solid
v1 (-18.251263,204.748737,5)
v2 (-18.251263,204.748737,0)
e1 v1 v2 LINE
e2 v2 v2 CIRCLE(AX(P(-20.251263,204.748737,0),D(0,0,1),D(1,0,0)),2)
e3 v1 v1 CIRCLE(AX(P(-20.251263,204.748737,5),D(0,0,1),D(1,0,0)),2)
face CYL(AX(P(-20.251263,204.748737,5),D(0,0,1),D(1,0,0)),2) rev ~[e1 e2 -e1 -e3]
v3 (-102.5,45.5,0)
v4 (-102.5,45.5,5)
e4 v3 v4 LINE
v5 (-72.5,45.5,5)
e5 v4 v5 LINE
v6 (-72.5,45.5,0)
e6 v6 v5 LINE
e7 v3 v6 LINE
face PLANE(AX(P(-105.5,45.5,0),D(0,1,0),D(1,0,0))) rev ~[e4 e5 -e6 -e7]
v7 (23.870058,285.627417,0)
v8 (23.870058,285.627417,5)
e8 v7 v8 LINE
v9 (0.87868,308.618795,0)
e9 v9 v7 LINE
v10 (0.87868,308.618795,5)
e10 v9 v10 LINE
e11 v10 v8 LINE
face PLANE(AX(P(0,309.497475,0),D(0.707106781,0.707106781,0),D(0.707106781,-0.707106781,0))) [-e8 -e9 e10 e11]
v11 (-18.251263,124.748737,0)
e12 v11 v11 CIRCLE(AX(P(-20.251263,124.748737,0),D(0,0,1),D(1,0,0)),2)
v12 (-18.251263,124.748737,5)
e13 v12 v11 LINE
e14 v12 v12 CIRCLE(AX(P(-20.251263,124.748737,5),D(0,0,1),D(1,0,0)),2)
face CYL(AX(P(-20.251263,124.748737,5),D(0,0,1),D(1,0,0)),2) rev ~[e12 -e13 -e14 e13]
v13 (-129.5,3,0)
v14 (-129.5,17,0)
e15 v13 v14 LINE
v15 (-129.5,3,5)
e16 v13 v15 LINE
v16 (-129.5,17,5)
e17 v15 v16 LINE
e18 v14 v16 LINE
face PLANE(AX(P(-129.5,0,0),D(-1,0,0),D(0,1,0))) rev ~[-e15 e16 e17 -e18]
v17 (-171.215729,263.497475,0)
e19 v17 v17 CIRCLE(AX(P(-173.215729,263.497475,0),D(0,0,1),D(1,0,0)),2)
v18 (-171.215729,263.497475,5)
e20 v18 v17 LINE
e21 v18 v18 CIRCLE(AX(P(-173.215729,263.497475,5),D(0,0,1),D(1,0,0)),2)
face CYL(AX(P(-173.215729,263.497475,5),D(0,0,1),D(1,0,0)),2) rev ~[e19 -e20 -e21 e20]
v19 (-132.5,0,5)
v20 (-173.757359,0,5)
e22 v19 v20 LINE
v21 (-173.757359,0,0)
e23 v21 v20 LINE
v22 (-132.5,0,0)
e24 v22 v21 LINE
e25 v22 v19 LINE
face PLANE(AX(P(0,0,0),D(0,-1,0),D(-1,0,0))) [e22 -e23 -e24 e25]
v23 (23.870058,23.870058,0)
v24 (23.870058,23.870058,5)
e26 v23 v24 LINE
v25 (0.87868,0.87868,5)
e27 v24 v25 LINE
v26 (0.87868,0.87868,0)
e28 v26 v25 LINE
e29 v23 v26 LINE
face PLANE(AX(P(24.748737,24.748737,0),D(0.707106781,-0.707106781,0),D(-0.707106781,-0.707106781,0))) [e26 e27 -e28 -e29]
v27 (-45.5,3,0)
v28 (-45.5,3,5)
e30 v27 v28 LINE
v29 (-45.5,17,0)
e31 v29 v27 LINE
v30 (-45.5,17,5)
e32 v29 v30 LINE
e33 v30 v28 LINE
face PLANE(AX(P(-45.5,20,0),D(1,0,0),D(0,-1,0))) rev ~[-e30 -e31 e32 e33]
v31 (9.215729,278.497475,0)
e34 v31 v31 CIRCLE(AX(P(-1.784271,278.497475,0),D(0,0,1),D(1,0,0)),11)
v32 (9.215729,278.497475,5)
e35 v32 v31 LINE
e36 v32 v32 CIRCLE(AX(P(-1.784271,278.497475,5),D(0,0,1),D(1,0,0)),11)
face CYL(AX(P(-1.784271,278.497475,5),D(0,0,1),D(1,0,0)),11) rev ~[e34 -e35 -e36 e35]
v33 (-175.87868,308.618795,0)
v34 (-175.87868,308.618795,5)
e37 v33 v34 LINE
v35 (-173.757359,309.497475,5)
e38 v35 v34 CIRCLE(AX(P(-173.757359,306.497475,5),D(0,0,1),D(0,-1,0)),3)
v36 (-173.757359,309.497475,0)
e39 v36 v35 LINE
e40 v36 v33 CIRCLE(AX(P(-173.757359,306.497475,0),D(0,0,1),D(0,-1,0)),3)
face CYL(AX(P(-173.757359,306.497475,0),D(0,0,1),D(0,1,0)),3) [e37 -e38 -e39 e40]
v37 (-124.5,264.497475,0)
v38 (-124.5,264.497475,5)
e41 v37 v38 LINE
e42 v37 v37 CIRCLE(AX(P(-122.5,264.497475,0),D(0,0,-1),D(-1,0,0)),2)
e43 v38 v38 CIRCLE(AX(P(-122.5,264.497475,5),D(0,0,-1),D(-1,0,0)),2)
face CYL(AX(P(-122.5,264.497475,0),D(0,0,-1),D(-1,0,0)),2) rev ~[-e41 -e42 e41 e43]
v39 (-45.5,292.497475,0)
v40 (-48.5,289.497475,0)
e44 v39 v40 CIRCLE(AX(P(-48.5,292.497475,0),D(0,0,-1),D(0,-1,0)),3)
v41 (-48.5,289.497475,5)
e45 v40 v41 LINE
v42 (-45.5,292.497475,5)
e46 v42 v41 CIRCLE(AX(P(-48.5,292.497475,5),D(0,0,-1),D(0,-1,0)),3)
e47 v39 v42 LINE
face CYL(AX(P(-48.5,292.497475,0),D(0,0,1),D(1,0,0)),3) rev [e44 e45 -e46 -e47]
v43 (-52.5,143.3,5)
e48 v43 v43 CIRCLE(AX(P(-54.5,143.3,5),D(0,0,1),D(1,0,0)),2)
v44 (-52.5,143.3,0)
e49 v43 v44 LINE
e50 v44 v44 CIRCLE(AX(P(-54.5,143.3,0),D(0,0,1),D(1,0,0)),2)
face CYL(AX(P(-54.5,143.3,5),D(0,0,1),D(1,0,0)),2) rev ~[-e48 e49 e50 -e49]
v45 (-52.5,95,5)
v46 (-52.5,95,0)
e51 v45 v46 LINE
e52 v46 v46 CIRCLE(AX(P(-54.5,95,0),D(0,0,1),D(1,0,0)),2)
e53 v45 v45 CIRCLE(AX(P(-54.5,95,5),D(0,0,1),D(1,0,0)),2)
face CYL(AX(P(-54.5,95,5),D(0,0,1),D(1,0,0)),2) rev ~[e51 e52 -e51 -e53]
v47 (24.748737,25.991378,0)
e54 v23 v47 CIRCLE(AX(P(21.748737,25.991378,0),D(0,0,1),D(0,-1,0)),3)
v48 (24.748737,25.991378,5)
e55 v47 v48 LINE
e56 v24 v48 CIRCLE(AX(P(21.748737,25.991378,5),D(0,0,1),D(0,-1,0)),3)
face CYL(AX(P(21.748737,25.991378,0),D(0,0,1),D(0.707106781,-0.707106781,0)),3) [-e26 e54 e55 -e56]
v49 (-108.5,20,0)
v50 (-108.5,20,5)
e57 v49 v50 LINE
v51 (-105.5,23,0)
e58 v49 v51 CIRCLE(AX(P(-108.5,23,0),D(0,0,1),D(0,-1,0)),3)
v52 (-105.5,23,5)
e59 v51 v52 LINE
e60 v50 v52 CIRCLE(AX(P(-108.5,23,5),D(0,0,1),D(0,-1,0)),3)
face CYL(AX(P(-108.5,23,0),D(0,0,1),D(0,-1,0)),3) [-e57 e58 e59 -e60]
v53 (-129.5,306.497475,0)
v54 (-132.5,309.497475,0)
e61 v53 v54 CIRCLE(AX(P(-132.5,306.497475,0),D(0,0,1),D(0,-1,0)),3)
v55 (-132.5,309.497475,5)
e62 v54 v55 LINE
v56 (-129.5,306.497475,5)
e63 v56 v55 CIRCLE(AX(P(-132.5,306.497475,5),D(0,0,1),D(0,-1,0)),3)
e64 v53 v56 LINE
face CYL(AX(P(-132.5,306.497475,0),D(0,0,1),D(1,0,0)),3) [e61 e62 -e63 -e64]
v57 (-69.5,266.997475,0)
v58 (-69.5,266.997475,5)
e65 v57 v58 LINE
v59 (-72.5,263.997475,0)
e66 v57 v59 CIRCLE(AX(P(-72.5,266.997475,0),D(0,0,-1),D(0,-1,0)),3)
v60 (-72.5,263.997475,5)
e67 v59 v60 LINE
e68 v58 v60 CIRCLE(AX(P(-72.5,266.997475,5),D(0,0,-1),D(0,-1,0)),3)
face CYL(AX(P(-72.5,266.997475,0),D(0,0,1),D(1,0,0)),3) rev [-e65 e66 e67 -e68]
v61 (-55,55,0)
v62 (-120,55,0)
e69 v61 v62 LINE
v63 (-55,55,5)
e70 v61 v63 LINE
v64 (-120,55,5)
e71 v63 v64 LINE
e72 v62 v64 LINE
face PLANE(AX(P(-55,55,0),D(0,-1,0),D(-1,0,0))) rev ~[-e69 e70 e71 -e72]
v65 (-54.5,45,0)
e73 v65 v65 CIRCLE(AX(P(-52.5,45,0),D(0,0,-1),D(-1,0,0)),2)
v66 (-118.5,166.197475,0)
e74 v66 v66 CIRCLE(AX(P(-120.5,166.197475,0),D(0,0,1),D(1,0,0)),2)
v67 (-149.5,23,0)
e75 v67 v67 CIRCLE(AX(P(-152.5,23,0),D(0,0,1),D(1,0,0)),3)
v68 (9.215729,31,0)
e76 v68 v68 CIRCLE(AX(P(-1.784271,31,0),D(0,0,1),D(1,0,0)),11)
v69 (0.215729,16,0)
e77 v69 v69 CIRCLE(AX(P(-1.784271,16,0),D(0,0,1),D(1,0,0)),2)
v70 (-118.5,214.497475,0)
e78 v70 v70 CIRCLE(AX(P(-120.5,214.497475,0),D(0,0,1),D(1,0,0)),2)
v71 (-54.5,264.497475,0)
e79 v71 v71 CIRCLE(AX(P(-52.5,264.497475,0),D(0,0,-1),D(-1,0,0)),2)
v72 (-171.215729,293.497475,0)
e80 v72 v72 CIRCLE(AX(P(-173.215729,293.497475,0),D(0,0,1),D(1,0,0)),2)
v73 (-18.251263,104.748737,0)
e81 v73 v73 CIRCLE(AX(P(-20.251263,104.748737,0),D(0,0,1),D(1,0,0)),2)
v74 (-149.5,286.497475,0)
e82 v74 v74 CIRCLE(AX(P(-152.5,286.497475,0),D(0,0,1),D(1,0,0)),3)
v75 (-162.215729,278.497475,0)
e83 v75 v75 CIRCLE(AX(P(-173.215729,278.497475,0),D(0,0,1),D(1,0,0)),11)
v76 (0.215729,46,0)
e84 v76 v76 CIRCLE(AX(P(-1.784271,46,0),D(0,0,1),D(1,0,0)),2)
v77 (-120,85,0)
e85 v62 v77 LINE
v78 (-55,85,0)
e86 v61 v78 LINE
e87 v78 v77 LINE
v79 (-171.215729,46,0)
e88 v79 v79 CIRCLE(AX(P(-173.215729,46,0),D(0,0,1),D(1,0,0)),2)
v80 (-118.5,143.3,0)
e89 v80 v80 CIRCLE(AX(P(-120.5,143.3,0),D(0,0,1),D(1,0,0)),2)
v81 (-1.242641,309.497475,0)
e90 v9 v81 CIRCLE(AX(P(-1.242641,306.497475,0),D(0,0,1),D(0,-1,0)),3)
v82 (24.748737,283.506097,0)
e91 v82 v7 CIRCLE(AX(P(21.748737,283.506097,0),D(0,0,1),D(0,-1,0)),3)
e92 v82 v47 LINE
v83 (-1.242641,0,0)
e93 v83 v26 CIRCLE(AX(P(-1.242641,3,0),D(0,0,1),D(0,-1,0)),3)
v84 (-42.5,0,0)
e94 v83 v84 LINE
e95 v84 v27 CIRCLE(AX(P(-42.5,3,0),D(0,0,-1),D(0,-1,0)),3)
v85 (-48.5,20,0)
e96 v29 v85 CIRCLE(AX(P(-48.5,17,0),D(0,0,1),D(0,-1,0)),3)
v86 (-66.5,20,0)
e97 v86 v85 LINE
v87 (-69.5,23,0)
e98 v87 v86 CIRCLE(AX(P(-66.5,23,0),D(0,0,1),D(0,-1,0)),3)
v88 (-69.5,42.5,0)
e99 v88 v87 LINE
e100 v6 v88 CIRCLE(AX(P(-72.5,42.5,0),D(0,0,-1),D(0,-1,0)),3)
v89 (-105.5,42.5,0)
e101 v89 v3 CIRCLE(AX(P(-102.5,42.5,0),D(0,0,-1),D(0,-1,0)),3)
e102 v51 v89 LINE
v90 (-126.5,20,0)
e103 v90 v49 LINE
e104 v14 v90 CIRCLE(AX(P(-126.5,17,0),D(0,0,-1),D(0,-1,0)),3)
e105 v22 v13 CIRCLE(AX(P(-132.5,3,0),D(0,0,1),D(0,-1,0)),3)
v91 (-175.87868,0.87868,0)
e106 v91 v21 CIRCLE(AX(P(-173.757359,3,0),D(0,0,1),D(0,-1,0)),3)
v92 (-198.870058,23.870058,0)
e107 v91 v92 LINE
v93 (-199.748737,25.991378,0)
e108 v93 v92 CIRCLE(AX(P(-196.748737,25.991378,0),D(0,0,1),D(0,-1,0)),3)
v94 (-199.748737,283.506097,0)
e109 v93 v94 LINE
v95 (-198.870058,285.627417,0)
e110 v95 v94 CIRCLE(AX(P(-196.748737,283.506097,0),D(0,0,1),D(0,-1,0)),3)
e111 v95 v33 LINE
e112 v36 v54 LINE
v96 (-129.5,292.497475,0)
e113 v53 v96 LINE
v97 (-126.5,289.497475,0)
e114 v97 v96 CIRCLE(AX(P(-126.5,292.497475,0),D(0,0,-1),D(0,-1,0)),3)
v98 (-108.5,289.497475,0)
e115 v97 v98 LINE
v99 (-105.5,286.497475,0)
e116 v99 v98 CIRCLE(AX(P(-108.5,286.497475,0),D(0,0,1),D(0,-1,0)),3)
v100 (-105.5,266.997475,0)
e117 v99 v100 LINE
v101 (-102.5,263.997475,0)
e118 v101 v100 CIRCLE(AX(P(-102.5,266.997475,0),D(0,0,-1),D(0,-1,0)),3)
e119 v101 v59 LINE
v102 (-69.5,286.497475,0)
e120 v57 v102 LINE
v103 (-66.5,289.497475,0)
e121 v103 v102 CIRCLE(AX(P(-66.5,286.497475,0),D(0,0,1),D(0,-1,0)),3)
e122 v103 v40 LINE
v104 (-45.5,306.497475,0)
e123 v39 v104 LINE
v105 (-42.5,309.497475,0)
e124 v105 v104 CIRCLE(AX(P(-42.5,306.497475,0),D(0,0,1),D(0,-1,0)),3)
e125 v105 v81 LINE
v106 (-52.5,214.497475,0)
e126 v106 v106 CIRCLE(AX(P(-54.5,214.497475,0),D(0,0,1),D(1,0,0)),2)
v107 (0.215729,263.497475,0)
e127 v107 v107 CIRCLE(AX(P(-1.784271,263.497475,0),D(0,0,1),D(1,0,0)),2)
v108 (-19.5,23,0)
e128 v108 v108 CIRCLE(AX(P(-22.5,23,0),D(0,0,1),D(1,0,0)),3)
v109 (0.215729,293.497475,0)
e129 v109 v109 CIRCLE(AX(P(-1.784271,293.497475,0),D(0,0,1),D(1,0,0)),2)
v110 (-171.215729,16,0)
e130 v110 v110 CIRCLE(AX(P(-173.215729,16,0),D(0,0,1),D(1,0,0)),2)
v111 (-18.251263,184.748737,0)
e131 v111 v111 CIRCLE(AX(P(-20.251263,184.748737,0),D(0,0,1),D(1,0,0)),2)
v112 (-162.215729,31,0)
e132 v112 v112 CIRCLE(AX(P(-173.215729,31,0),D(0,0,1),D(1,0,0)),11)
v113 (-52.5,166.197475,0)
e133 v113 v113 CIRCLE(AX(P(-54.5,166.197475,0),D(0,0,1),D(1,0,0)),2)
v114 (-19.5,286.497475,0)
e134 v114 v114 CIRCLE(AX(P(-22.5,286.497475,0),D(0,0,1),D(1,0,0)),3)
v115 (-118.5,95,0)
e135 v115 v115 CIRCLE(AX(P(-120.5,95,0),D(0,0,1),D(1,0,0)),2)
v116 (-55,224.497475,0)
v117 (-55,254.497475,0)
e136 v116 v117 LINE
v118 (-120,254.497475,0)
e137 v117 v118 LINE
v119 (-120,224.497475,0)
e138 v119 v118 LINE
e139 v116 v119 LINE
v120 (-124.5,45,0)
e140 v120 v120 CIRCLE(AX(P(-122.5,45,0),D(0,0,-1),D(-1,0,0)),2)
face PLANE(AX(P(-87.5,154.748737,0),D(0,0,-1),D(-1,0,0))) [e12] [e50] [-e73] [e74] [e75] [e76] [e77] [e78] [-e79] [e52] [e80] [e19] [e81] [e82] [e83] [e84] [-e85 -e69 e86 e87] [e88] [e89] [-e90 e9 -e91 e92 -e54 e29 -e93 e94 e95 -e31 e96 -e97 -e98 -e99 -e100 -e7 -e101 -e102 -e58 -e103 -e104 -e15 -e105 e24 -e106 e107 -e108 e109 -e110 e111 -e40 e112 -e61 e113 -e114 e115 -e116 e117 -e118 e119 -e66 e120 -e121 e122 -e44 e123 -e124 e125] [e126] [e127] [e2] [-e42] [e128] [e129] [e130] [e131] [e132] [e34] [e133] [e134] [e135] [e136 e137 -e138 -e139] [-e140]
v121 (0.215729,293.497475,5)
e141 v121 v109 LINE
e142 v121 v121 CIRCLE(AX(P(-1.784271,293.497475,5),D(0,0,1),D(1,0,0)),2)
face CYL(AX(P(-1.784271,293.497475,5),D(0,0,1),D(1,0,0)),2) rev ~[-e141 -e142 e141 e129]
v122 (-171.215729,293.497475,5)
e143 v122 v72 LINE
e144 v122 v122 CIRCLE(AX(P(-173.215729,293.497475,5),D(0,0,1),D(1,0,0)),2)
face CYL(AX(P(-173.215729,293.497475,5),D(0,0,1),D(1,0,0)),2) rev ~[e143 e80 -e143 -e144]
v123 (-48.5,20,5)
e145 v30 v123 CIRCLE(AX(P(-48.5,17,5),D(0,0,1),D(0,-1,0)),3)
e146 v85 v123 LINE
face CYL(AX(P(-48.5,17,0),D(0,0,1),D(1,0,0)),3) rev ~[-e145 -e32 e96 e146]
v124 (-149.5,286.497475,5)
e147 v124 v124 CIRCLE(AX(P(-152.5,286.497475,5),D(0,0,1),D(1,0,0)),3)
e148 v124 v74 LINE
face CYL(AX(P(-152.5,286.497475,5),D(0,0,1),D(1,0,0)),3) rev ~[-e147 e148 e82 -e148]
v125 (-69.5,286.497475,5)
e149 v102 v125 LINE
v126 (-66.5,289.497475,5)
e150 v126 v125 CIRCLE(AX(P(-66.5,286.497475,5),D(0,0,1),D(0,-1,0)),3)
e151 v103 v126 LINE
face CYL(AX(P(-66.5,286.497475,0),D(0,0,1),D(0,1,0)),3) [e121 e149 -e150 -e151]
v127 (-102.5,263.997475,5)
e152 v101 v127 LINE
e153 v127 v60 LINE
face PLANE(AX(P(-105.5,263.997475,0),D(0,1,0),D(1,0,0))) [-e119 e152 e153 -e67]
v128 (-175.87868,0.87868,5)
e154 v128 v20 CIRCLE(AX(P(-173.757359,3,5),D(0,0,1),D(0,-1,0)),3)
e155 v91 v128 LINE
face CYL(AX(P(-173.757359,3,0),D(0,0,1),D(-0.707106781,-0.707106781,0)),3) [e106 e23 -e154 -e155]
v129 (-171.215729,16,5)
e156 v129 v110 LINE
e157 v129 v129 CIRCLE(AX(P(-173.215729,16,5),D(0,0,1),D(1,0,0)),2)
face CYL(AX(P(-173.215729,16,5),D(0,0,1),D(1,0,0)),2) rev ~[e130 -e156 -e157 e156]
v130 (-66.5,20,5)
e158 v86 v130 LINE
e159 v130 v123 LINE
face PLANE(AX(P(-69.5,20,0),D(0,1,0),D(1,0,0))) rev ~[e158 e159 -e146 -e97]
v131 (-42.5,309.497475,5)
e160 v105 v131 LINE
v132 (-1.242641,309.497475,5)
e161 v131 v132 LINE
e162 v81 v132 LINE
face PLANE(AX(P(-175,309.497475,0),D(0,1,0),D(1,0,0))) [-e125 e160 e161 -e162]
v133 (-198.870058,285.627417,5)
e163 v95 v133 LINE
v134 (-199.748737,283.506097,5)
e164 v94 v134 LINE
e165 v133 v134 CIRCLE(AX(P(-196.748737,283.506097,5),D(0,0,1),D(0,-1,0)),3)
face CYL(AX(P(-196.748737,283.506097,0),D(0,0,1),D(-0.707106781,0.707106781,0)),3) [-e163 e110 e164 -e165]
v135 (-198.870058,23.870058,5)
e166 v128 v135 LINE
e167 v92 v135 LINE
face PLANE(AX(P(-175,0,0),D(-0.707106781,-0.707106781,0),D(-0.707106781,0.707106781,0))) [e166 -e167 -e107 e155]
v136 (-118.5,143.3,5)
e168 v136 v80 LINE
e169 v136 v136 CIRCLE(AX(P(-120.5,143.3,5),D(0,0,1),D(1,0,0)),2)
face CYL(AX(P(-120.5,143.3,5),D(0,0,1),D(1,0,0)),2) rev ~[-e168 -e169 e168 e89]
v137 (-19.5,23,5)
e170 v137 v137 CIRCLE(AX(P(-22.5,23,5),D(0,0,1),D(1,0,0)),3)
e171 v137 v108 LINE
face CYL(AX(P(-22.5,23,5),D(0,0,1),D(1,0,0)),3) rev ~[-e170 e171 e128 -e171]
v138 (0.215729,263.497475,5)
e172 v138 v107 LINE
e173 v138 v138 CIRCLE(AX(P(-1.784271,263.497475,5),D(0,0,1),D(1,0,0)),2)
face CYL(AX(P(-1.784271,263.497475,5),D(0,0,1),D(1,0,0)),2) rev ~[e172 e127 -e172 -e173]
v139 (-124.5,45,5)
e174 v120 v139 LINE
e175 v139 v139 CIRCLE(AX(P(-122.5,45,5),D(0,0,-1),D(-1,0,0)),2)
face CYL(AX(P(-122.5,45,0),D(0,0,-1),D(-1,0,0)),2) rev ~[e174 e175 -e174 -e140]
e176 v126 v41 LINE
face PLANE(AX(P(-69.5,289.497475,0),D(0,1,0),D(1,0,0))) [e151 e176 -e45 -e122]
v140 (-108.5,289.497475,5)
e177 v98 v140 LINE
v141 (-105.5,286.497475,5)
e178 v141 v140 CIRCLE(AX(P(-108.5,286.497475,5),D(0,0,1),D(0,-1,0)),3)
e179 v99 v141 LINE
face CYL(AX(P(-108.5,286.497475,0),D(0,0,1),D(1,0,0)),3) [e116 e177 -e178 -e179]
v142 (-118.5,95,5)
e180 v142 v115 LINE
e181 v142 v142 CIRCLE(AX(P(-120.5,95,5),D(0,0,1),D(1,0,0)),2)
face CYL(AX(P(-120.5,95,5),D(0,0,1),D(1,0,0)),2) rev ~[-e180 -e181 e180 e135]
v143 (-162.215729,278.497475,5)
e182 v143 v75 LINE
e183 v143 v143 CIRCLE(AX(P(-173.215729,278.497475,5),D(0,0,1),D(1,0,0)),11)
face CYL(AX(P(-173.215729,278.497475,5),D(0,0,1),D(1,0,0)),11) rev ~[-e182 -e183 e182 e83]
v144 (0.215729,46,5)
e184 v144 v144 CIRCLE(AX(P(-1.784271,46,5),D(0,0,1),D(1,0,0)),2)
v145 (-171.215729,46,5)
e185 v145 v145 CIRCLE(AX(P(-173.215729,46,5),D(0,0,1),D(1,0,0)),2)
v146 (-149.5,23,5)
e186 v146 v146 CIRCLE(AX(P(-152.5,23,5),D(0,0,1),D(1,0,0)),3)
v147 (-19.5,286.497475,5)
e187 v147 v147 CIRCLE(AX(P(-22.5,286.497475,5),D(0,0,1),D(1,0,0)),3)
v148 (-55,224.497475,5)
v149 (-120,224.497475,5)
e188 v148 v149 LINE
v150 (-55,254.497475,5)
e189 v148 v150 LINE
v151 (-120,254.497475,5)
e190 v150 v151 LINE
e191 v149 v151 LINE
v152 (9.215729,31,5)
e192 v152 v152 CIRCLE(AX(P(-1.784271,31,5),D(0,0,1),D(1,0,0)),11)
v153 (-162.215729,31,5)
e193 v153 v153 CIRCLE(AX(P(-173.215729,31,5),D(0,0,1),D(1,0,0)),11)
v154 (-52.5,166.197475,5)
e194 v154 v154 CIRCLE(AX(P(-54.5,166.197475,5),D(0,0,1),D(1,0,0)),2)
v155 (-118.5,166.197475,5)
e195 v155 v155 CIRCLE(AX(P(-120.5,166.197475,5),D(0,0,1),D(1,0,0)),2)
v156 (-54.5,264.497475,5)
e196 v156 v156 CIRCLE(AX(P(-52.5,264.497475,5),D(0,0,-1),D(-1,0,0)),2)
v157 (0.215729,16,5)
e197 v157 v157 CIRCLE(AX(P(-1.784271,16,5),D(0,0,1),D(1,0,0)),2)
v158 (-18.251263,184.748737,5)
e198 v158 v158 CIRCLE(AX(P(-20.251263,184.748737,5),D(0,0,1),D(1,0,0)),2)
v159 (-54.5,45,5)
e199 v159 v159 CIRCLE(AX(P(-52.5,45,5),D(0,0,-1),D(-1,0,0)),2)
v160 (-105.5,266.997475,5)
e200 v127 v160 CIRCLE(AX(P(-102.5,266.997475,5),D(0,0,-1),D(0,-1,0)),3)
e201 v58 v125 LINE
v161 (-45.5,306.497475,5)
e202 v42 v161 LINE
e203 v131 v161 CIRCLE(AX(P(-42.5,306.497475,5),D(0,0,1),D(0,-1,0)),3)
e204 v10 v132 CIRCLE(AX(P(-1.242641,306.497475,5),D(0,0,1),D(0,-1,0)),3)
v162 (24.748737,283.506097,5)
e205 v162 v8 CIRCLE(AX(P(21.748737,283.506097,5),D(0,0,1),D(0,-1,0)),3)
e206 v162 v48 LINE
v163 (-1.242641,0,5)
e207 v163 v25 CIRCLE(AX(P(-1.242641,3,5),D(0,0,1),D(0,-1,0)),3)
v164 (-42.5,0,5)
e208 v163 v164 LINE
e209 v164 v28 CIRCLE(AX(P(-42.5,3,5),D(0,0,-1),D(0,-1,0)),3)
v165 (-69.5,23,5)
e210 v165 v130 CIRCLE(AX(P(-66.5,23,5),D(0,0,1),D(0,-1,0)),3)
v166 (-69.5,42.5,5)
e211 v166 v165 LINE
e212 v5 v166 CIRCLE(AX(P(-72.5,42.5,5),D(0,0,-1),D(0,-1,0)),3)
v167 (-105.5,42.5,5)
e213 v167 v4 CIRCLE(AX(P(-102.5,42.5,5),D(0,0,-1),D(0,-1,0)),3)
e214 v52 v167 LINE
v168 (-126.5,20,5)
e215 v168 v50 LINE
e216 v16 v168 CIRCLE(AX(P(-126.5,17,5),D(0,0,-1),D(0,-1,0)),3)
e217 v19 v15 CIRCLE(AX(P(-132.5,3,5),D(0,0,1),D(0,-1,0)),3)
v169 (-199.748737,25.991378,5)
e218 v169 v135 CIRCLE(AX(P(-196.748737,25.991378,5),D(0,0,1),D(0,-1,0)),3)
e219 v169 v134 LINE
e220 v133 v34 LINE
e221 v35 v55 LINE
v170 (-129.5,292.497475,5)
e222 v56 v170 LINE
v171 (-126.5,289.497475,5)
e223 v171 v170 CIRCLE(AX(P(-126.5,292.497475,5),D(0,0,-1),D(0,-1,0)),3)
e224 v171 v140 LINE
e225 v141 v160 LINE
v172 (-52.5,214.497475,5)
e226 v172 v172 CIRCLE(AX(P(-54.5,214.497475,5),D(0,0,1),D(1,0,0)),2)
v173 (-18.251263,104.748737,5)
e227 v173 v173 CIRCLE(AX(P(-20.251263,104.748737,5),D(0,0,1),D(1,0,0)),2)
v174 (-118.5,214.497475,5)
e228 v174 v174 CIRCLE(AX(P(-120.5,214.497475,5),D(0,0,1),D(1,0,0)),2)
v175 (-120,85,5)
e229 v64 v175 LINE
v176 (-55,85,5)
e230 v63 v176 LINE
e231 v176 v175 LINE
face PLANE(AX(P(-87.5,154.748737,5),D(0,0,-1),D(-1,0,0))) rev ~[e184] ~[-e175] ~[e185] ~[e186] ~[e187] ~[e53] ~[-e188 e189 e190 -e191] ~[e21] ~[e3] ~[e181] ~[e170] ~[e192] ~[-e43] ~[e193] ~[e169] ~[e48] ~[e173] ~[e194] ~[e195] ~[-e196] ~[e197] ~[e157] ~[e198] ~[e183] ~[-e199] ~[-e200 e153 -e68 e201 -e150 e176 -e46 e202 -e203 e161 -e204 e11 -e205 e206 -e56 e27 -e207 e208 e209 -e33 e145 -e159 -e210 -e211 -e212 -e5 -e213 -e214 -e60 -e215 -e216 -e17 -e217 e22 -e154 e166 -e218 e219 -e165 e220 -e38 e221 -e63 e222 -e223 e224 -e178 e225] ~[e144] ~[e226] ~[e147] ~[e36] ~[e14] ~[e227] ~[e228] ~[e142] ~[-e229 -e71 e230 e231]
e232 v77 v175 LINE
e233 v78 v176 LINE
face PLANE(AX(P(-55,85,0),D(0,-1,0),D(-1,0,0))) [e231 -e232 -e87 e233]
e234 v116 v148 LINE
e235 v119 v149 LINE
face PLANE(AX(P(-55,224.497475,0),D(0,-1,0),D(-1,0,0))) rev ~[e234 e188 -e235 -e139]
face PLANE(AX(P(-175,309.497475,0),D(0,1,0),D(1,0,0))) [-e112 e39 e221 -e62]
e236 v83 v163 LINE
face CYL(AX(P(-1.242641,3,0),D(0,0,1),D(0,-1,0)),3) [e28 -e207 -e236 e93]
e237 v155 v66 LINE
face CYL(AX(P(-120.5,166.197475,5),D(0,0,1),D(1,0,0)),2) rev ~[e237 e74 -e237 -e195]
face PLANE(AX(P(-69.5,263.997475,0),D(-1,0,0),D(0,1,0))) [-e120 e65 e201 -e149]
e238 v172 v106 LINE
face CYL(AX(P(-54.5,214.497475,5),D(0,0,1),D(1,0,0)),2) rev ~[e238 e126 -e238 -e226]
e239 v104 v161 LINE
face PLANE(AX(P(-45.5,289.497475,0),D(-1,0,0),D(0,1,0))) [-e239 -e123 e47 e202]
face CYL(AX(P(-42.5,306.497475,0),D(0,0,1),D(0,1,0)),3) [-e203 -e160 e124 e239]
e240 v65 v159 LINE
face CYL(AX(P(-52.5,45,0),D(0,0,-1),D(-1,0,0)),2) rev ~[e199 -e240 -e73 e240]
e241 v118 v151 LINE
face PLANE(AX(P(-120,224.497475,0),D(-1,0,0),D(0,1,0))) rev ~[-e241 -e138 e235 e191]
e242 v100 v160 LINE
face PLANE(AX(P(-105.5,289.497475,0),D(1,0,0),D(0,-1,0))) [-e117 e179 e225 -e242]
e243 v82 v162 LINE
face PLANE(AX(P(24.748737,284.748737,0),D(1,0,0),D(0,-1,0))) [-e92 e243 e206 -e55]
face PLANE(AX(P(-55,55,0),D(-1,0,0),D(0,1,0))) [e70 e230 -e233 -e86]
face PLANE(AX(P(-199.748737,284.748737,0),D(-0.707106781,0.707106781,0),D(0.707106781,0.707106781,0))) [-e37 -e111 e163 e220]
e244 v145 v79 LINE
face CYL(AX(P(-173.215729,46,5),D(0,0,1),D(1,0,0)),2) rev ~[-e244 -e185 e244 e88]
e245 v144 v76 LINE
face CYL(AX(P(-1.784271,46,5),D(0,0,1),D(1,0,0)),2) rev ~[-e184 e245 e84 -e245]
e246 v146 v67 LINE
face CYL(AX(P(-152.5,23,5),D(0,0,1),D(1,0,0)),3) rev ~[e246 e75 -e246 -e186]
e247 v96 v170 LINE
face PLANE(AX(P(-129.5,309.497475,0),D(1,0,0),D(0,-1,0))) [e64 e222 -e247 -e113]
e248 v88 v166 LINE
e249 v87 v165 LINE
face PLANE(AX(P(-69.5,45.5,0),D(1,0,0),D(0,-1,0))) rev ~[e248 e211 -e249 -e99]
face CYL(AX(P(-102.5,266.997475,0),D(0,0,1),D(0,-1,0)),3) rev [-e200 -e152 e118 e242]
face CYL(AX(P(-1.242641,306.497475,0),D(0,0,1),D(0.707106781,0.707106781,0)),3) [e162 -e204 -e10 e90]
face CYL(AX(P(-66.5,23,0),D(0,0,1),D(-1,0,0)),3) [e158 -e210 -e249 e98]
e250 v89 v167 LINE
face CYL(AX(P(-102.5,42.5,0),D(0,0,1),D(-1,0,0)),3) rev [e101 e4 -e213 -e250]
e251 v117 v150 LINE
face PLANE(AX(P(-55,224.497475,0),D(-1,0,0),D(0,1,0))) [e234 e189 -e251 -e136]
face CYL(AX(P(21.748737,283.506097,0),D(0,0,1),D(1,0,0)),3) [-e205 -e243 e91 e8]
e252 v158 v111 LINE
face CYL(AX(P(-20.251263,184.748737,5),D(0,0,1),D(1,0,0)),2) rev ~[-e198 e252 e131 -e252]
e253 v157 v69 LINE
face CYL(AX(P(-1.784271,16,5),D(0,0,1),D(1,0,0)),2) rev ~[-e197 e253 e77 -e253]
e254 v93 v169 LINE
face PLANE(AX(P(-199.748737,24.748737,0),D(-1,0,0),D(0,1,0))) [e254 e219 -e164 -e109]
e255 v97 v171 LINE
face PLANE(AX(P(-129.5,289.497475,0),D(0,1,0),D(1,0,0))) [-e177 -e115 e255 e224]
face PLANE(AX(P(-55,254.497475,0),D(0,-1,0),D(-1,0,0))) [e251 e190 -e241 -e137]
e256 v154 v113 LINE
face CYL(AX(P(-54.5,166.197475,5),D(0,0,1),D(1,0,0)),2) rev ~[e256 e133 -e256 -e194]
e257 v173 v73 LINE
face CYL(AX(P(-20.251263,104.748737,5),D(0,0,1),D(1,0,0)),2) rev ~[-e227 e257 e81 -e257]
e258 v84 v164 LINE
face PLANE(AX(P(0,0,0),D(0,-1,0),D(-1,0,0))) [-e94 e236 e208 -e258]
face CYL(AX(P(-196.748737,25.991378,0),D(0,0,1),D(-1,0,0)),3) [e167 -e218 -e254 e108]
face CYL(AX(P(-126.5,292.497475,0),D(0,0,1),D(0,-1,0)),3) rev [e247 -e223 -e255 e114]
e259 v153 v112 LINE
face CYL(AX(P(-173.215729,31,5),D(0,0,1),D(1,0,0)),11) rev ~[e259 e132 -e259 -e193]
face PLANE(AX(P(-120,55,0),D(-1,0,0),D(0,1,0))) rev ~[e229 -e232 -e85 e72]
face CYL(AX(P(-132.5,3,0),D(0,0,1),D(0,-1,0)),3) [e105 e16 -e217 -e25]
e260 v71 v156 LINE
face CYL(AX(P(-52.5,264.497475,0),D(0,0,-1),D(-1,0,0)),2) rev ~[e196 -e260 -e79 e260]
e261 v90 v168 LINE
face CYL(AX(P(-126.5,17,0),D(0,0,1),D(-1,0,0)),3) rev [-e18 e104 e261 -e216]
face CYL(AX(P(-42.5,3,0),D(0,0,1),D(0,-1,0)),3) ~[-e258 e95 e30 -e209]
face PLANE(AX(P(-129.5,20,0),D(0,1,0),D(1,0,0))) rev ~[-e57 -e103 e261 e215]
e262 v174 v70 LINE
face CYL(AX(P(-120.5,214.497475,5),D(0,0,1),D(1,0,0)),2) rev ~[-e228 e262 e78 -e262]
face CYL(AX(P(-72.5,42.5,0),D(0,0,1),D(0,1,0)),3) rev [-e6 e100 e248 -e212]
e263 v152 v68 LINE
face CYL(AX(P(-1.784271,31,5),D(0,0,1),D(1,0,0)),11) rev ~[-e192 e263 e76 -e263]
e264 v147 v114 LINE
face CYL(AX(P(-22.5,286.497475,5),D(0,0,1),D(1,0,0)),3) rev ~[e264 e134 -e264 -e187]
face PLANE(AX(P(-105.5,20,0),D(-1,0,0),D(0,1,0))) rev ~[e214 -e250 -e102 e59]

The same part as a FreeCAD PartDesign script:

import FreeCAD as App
import Part
import Sketcher
from FreeCAD import Vector


def edges_at(feature, points):
    """Names of the edges that pass closest to the given points."""
    edges = feature.Shape.Edges
    near = lambda p: min(range(len(edges)), key=lambda i: edges[i].distToShape(Part.Vertex(*p))[0])
    return sorted({f"Edge{near(p) + 1}" for p in points})


def add_polygon(sketch, points):
    """Adds a closed chain of lines whose ends are joined by coincident constraints."""
    first, n = sketch.GeometryCount, len(points)
    for a, b in zip(points, points[1:] + points[:1]):
        sketch.addGeometry(Part.LineSegment(App.Vector(*a, 0), App.Vector(*b, 0)), False)
    for i in range(n):
        sketch.addConstraint(Sketcher.Constraint("Coincident", first + i, 2, first + (i + 1) % n, 1))

doc = App.newDocument("Part")
body = doc.addObject("PartDesign::Body", "Body")

sketch1 = doc.addObject("Sketcher::SketchObject", "Sketch")
body.addObject(sketch1)
sketch1.AttachmentSupport = (doc.XY_Plane, [""])
sketch1.MapMode = "FlatFace"
add_polygon(sketch1, [(-175, 0), (0, 0), (25, 25), (25, 285), (0, 309), (-175, 309), (-200, 285), (-200, 25)])
sketch1.addConstraint([
    Sketcher.Constraint("Horizontal", 0),
    Sketcher.Constraint("Vertical", 2),
    Sketcher.Constraint("Horizontal", 4),
    Sketcher.Constraint("Vertical", 6),
    Sketcher.Constraint("Coincident", 0, 2, -1, 1),
    Sketcher.Constraint("PointOnObject", 3, 2, -2),
    Sketcher.Constraint("Perpendicular", 1, 3),
    Sketcher.Constraint("Perpendicular", 3, 5),
    Sketcher.Constraint("Perpendicular", 5, 7),
    Sketcher.Constraint("Horizontal", 2, 2, 5, 2),
    Sketcher.Constraint("Horizontal", 1, 2, 6, 2),
    Sketcher.Constraint("Vertical", 4, 2, 7, 2),
    Sketcher.Constraint("DistanceX", 0, 1, 0, 2, 175.0),
    Sketcher.Constraint("DistanceY", 2, 1, 2, 2, 260.0),
    Sketcher.Constraint("Distance", 1, 35.0),
])
pad1 = doc.addObject("PartDesign::Pad", "Pad")
body.addObject(pad1)
pad1.Profile = sketch1
pad1.Length = 5

sketch2 = doc.addObject("Sketcher::SketchObject", "Sketch001")
body.addObject(sketch2)
sketch2.AttachmentSupport = (doc.XY_Plane, [""])
sketch2.MapMode = "FlatFace"
sketch2.addGeometry(Part.Circle(Vector(-52.5, 45, 0), Vector(0, 0, 1), 2), False)
sketch2.addGeometry(Part.Circle(Vector(-122.5, 45, 0), Vector(0, 0, 1), 2), False)
sketch2.addGeometry(Part.Circle(Vector(-122.5, 264.5, 0), Vector(0, 0, 1), 2), False)
sketch2.addGeometry(Part.Circle(Vector(-52.5, 264.5, 0), Vector(0, 0, 1), 2), False)
add_polygon(sketch2, [(-129.5, 0), (-129.5, 20), (-105.5, 20), (-105.5, 45.5), (-69.5, 45.5), (-69.5, 20), (-45.5, 20), (-45.5, 0)])
add_polygon(sketch2, [(-129.5, 309.5), (-45.5, 309.5), (-45.5, 289.5), (-69.5, 289.5), (-69.5, 264), (-105.5, 264), (-105.5, 289.5), (-129.5, 289.5)])
add_polygon(sketch2, [(-55, 254.5), (-55, 224.5), (-120, 224.5), (-120, 254.5)])
add_polygon(sketch2, [(-55, 85), (-55, 55), (-120, 55), (-120, 85)])
sketch2.addConstraint([
    Sketcher.Constraint("Vertical", 4),
    Sketcher.Constraint("Horizontal", 5),
    Sketcher.Constraint("Vertical", 6),
    Sketcher.Constraint("Horizontal", 7),
    Sketcher.Constraint("Vertical", 8),
    Sketcher.Constraint("Horizontal", 9),
    Sketcher.Constraint("Vertical", 10),
    Sketcher.Constraint("Horizontal", 11),
    Sketcher.Constraint("Horizontal", 12),
    Sketcher.Constraint("Vertical", 13),
    Sketcher.Constraint("Horizontal", 14),
    Sketcher.Constraint("Vertical", 15),
    Sketcher.Constraint("Horizontal", 16),
    Sketcher.Constraint("Vertical", 17),
    Sketcher.Constraint("Horizontal", 18),
    Sketcher.Constraint("Vertical", 19),
    Sketcher.Constraint("Vertical", 20),
    Sketcher.Constraint("Horizontal", 21),
    Sketcher.Constraint("Vertical", 22),
    Sketcher.Constraint("Horizontal", 23),
    Sketcher.Constraint("Vertical", 24),
    Sketcher.Constraint("Horizontal", 25),
    Sketcher.Constraint("Vertical", 26),
    Sketcher.Constraint("Horizontal", 27),
    Sketcher.Constraint("Equal", 0, 1),
    Sketcher.Constraint("Equal", 1, 2),
    Sketcher.Constraint("Equal", 2, 3),
    Sketcher.Constraint("PointOnObject", 10, 2, -1),
    Sketcher.Constraint("Horizontal", 0, 3, 1, 3),
    Sketcher.Constraint("Horizontal", 2, 3, 3, 3),
    Sketcher.Constraint("Horizontal", 5, 2, 8, 2),
    Sketcher.Constraint("Horizontal", 14, 2, 17, 2),
    Sketcher.Constraint("Vertical", 1, 3, 2, 3),
    Sketcher.Constraint("Vertical", 0, 3, 3, 3),
    Sketcher.Constraint("Vertical", 10, 2, 12, 2),
    Sketcher.Constraint("Vertical", 8, 2, 14, 2),
    Sketcher.Constraint("Vertical", 6, 2, 16, 2),
    Sketcher.Constraint("Vertical", 11, 2, 18, 2),
    Sketcher.Constraint("Vertical", 23, 2, 24, 2),
    Sketcher.Constraint("Vertical", 22, 2, 25, 2),
    Sketcher.Constraint("Equal", 5, 9),
    Sketcher.Constraint("Equal", 10, 13),
    Sketcher.Constraint("Equal", 8, 15),
    Sketcher.Constraint("Equal", 22, 24),
    Sketcher.Constraint("Diameter", 0, 4.0),
    Sketcher.Constraint("DistanceX", 5, 1, 5, 2, 24.0),
    Sketcher.Constraint("DistanceX", 7, 1, 7, 2, 36.0),
    Sketcher.Constraint("DistanceX", 21, 2, 21, 1, 65.0),
    Sketcher.Constraint("DistanceY", 4, 1, 4, 2, 20.0),
    Sketcher.Constraint("DistanceY", 20, 2, 20, 1, 30.0),
    Sketcher.Constraint("DistanceY", 6, 1, 6, 2, 25.5),
    Sketcher.Constraint("DistanceY", -1, 1, 0, 3, 45.0),
    Sketcher.Constraint("DistanceX", 20, 2, -1, 1, 55.0),
    Sketcher.Constraint("DistanceY", -1, 1, 24, 2, 55.0),
    Sketcher.Constraint("DistanceX", 1, 3, 0, 3, 70.0),
    Sketcher.Constraint("DistanceX", 4, 2, 1, 3, 7.0),
    Sketcher.Constraint("DistanceY", 3, 3, 12, 2, 45.0),
    Sketcher.Constraint("DistanceY", 20, 2, 3, 3, 40.0),
    Sketcher.Constraint("DistanceX", 0, 3, -1, 1, 52.5),
    Sketcher.Constraint("DistanceY", -1, 1, 2, 3, 264.497475),
])
pocket1 = doc.addObject("PartDesign::Pocket", "Pocket")
body.addObject(pocket1)
pocket1.Profile = sketch2
pocket1.Type = "ThroughAll"
pocket1.Reversed = True
doc.recompute()

fillet = doc.addObject("PartDesign::Fillet", "Fillet")
body.addObject(fillet)
fillet.Base = (pocket1, edges_at(pocket1, [
    (0, 0, 2.5),
    (-175, 0, 2.5),
    (-199.749, 24.749, 2.5),
    (-199.749, 284.749, 2.5),
    (-175, 309.497, 2.5),
    (0, 309.497, 2.5),
    (24.749, 284.749, 2.5),
    (24.749, 24.749, 2.5),
    (-45.5, 289.497, 2.5),
    (-45.5, 309.497, 2.5),
    (-129.5, 309.497, 2.5),
    (-129.5, 289.497, 2.5),
    (-105.5, 289.497, 2.5),
    (-105.5, 263.997, 2.5),
    (-69.5, 263.997, 2.5),
    (-69.5, 289.497, 2.5),
    (-129.5, 0, 2.5),
    (-45.5, 0, 2.5),
    (-45.5, 20, 2.5),
    (-69.5, 20, 2.5),
    (-69.5, 45.5, 2.5),
    (-105.5, 45.5, 2.5),
    (-105.5, 20, 2.5),
    (-129.5, 20, 2.5),
]))
fillet.Radius = 3

sketch3 = doc.addObject("Sketcher::SketchObject", "Sketch002")
body.addObject(sketch3)
sketch3.AttachmentSupport = (doc.XY_Plane, [""])
sketch3.MapMode = "FlatFace"
sketch3.AttachmentOffset = App.Placement(Vector(0, 0, 5), App.Rotation())
sketch3.addGeometry(Part.Circle(Vector(-1.8, 16, 0), Vector(0, 0, 1), 2), False)
sketch3.addConstraint([
    Sketcher.Constraint("Diameter", 0, 4.0),
    Sketcher.Constraint("DistanceY", -1, 1, 0, 3, 16.0),
    Sketcher.Constraint("DistanceX", 0, 3, -1, 1, 1.784271),
])
pocket2 = doc.addObject("PartDesign::Pocket", "Pocket001")
body.addObject(pocket2)
pocket2.Profile = sketch3
pocket2.Type = "UpToFirst"

sketch4 = doc.addObject("Sketcher::SketchObject", "Sketch003")
body.addObject(sketch4)
sketch4.AttachmentSupport = (doc.XY_Plane, [""])
sketch4.MapMode = "FlatFace"
sketch4.AttachmentOffset = App.Placement(Vector(0, 0, 5), App.Rotation())
sketch4.addGeometry(Part.Circle(Vector(-1.8, 46, 0), Vector(0, 0, 1), 2), False)
sketch4.addConstraint([
    Sketcher.Constraint("Diameter", 0, 4.0),
    Sketcher.Constraint("DistanceY", -1, 1, 0, 3, 46.0),
    Sketcher.Constraint("DistanceX", 0, 3, -1, 1, 1.784271),
])
pocket3 = doc.addObject("PartDesign::Pocket", "Pocket002")
body.addObject(pocket3)
pocket3.Profile = sketch4
pocket3.Type = "UpToFirst"

sketch5 = doc.addObject("Sketcher::SketchObject", "Sketch004")
body.addObject(sketch5)
sketch5.AttachmentSupport = (doc.XY_Plane, [""])
sketch5.MapMode = "FlatFace"
sketch5.AttachmentOffset = App.Placement(Vector(0, 0, 5), App.Rotation())
sketch5.addGeometry(Part.Circle(Vector(-1.8, 263.5, 0), Vector(0, 0, 1), 2), False)
sketch5.addConstraint([
    Sketcher.Constraint("Diameter", 0, 4.0),
    Sketcher.Constraint("DistanceX", 0, 3, -1, 1, 1.784271),
    Sketcher.Constraint("DistanceY", -1, 1, 0, 3, 263.497475),
])
pocket4 = doc.addObject("PartDesign::Pocket", "Pocket003")
body.addObject(pocket4)
pocket4.Profile = sketch5
pocket4.Type = "UpToFirst"

sketch6 = doc.addObject("Sketcher::SketchObject", "Sketch005")
body.addObject(sketch6)
sketch6.AttachmentSupport = (doc.XY_Plane, [""])
sketch6.MapMode = "FlatFace"
sketch6.AttachmentOffset = App.Placement(Vector(0, 0, 5), App.Rotation())
sketch6.addGeometry(Part.Circle(Vector(-1.8, 293.5, 0), Vector(0, 0, 1), 2), False)
sketch6.addConstraint([
    Sketcher.Constraint("Diameter", 0, 4.0),
    Sketcher.Constraint("DistanceX", 0, 3, -1, 1, 1.784271),
    Sketcher.Constraint("DistanceY", -1, 1, 0, 3, 293.497475),
])
pocket5 = doc.addObject("PartDesign::Pocket", "Pocket004")
body.addObject(pocket5)
pocket5.Profile = sketch6
pocket5.Type = "UpToFirst"

sketch7 = doc.addObject("Sketcher::SketchObject", "Sketch006")
body.addObject(sketch7)
sketch7.AttachmentSupport = (doc.XY_Plane, [""])
sketch7.MapMode = "FlatFace"
sketch7.AttachmentOffset = App.Placement(Vector(0, 0, 5), App.Rotation())
sketch7.addGeometry(Part.Circle(Vector(-2, 278, 0), Vector(0, 0, 1), 11), False)
sketch7.addConstraint([
    Sketcher.Constraint("Diameter", 0, 22.0),
    Sketcher.Constraint("DistanceX", 0, 3, -1, 1, 1.784271),
    Sketcher.Constraint("DistanceY", -1, 1, 0, 3, 278.497475),
])
pocket6 = doc.addObject("PartDesign::Pocket", "Pocket005")
body.addObject(pocket6)
pocket6.Profile = sketch7
pocket6.Type = "UpToFirst"

sketch8 = doc.addObject("Sketcher::SketchObject", "Sketch007")
body.addObject(sketch8)
sketch8.AttachmentSupport = (doc.XY_Plane, [""])
sketch8.MapMode = "FlatFace"
sketch8.AttachmentOffset = App.Placement(Vector(0, 0, 5), App.Rotation())
sketch8.addGeometry(Part.Circle(Vector(-2, 31, 0), Vector(0, 0, 1), 11), False)
sketch8.addConstraint([
    Sketcher.Constraint("Diameter", 0, 22.0),
    Sketcher.Constraint("DistanceY", -1, 1, 0, 3, 31.0),
    Sketcher.Constraint("DistanceX", 0, 3, -1, 1, 1.784271),
])
pocket7 = doc.addObject("PartDesign::Pocket", "Pocket006")
body.addObject(pocket7)
pocket7.Profile = sketch8
pocket7.Type = "UpToFirst"

sketch9 = doc.addObject("Sketcher::SketchObject", "Sketch008")
body.addObject(sketch9)
sketch9.AttachmentSupport = (doc.XY_Plane, [""])
sketch9.MapMode = "FlatFace"
sketch9.AttachmentOffset = App.Placement(Vector(0, 0, 5), App.Rotation())
sketch9.addGeometry(Part.Circle(Vector(-173.2, 16, 0), Vector(0, 0, 1), 2), False)
sketch9.addConstraint([
    Sketcher.Constraint("Diameter", 0, 4.0),
    Sketcher.Constraint("DistanceY", -1, 1, 0, 3, 16.0),
    Sketcher.Constraint("DistanceX", 0, 3, -1, 1, 173.215729),
])
pocket8 = doc.addObject("PartDesign::Pocket", "Pocket007")
body.addObject(pocket8)
pocket8.Profile = sketch9
pocket8.Type = "UpToFirst"

sketch10 = doc.addObject("Sketcher::SketchObject", "Sketch009")
body.addObject(sketch10)
sketch10.AttachmentSupport = (doc.XY_Plane, [""])
sketch10.MapMode = "FlatFace"
sketch10.AttachmentOffset = App.Placement(Vector(0, 0, 5), App.Rotation())
sketch10.addGeometry(Part.Circle(Vector(-173.2, 46, 0), Vector(0, 0, 1), 2), False)
sketch10.addConstraint([
    Sketcher.Constraint("Diameter", 0, 4.0),
    Sketcher.Constraint("DistanceY", -1, 1, 0, 3, 46.0),
    Sketcher.Constraint("DistanceX", 0, 3, -1, 1, 173.215729),
])
pocket9 = doc.addObject("PartDesign::Pocket", "Pocket008")
body.addObject(pocket9)
pocket9.Profile = sketch10
pocket9.Type = "UpToFirst"

sketch11 = doc.addObject("Sketcher::SketchObject", "Sketch010")
body.addObject(sketch11)
sketch11.AttachmentSupport = (doc.XY_Plane, [""])
sketch11.MapMode = "FlatFace"
sketch11.AttachmentOffset = App.Placement(Vector(0, 0, 5), App.Rotation())
sketch11.addGeometry(Part.Circle(Vector(-173, 31, 0), Vector(0, 0, 1), 11), False)
sketch11.addConstraint([
    Sketcher.Constraint("Diameter", 0, 22.0),
    Sketcher.Constraint("DistanceY", -1, 1, 0, 3, 31.0),
    Sketcher.Constraint("DistanceX", 0, 3, -1, 1, 173.215729),
])
pocket10 = doc.addObject("PartDesign::Pocket", "Pocket009")
body.addObject(pocket10)
pocket10.Profile = sketch11
pocket10.Type = "UpToFirst"

sketch12 = doc.addObject("Sketcher::SketchObject", "Sketch011")
body.addObject(sketch12)
sketch12.AttachmentSupport = (doc.XY_Plane, [""])
sketch12.MapMode = "FlatFace"
sketch12.AttachmentOffset = App.Placement(Vector(0, 0, 5), App.Rotation())
sketch12.addGeometry(Part.Circle(Vector(-173.2, 263.5, 0), Vector(0, 0, 1), 2), False)
sketch12.addConstraint([
    Sketcher.Constraint("Diameter", 0, 4.0),
    Sketcher.Constraint("DistanceX", 0, 3, -1, 1, 173.215729),
    Sketcher.Constraint("DistanceY", -1, 1, 0, 3, 263.497475),
])
pocket11 = doc.addObject("PartDesign::Pocket", "Pocket010")
body.addObject(pocket11)
pocket11.Profile = sketch12
pocket11.Type = "UpToFirst"

sketch13 = doc.addObject("Sketcher::SketchObject", "Sketch012")
body.addObject(sketch13)
sketch13.AttachmentSupport = (doc.XY_Plane, [""])
sketch13.MapMode = "FlatFace"
sketch13.AttachmentOffset = App.Placement(Vector(0, 0, 5), App.Rotation())
sketch13.addGeometry(Part.Circle(Vector(-173.2, 293.5, 0), Vector(0, 0, 1), 2), False)
sketch13.addConstraint([
    Sketcher.Constraint("Diameter", 0, 4.0),
    Sketcher.Constraint("DistanceX", 0, 3, -1, 1, 173.215729),
    Sketcher.Constraint("DistanceY", -1, 1, 0, 3, 293.497475),
])
pocket12 = doc.addObject("PartDesign::Pocket", "Pocket011")
body.addObject(pocket12)
pocket12.Profile = sketch13
pocket12.Type = "UpToFirst"

sketch14 = doc.addObject("Sketcher::SketchObject", "Sketch013")
body.addObject(sketch14)
sketch14.AttachmentSupport = (doc.XY_Plane, [""])
sketch14.MapMode = "FlatFace"
sketch14.AttachmentOffset = App.Placement(Vector(0, 0, 5), App.Rotation())
sketch14.addGeometry(Part.Circle(Vector(-173, 278, 0), Vector(0, 0, 1), 11), False)
sketch14.addConstraint([
    Sketcher.Constraint("Diameter", 0, 22.0),
    Sketcher.Constraint("DistanceX", 0, 3, -1, 1, 173.215729),
    Sketcher.Constraint("DistanceY", -1, 1, 0, 3, 278.497475),
])
pocket13 = doc.addObject("PartDesign::Pocket", "Pocket012")
body.addObject(pocket13)
pocket13.Profile = sketch14
pocket13.Type = "UpToFirst"

sketch15 = doc.addObject("Sketcher::SketchObject", "Sketch014")
body.addObject(sketch15)
sketch15.AttachmentSupport = (doc.XY_Plane, [""])
sketch15.MapMode = "FlatFace"
sketch15.AttachmentOffset = App.Placement(Vector(0, 0, 5), App.Rotation())
sketch15.addGeometry(Part.Circle(Vector(-152.5, 23, 0), Vector(0, 0, 1), 3), False)
sketch15.addConstraint([
    Sketcher.Constraint("Diameter", 0, 6.0),
    Sketcher.Constraint("DistanceY", -1, 1, 0, 3, 23.0),
    Sketcher.Constraint("DistanceX", 0, 3, -1, 1, 152.5),
])
pocket14 = doc.addObject("PartDesign::Pocket", "Pocket013")
body.addObject(pocket14)
pocket14.Profile = sketch15
pocket14.Type = "UpToFirst"

sketch16 = doc.addObject("Sketcher::SketchObject", "Sketch015")
body.addObject(sketch16)
sketch16.AttachmentSupport = (doc.XY_Plane, [""])
sketch16.MapMode = "FlatFace"
sketch16.AttachmentOffset = App.Placement(Vector(0, 0, 5), App.Rotation())
sketch16.addGeometry(Part.Circle(Vector(-152.5, 286.5, 0), Vector(0, 0, 1), 3), False)
sketch16.addConstraint([
    Sketcher.Constraint("Diameter", 0, 6.0),
    Sketcher.Constraint("DistanceX", 0, 3, -1, 1, 152.5),
    Sketcher.Constraint("DistanceY", -1, 1, 0, 3, 286.497475),
])
pocket15 = doc.addObject("PartDesign::Pocket", "Pocket014")
body.addObject(pocket15)
pocket15.Profile = sketch16
pocket15.Type = "UpToFirst"

sketch17 = doc.addObject("Sketcher::SketchObject", "Sketch016")
body.addObject(sketch17)
sketch17.AttachmentSupport = (doc.XY_Plane, [""])
sketch17.MapMode = "FlatFace"
sketch17.AttachmentOffset = App.Placement(Vector(0, 0, 5), App.Rotation())
sketch17.addGeometry(Part.Circle(Vector(-22.5, 286.5, 0), Vector(0, 0, 1), 3), False)
sketch17.addConstraint([
    Sketcher.Constraint("Diameter", 0, 6.0),
    Sketcher.Constraint("DistanceX", 0, 3, -1, 1, 22.5),
    Sketcher.Constraint("DistanceY", -1, 1, 0, 3, 286.497475),
])
pocket16 = doc.addObject("PartDesign::Pocket", "Pocket015")
body.addObject(pocket16)
pocket16.Profile = sketch17
pocket16.Type = "UpToFirst"

sketch18 = doc.addObject("Sketcher::SketchObject", "Sketch017")
body.addObject(sketch18)
sketch18.AttachmentSupport = (doc.XY_Plane, [""])
sketch18.MapMode = "FlatFace"
sketch18.AttachmentOffset = App.Placement(Vector(0, 0, 5), App.Rotation())
sketch18.addGeometry(Part.Circle(Vector(-22.5, 23, 0), Vector(0, 0, 1), 3), False)
sketch18.addConstraint([
    Sketcher.Constraint("Diameter", 0, 6.0),
    Sketcher.Constraint("DistanceY", -1, 1, 0, 3, 23.0),
    Sketcher.Constraint("DistanceX", 0, 3, -1, 1, 22.5),
])
pocket17 = doc.addObject("PartDesign::Pocket", "Pocket016")
body.addObject(pocket17)
pocket17.Profile = sketch18
pocket17.Type = "UpToFirst"

sketch19 = doc.addObject("Sketcher::SketchObject", "Sketch018")
body.addObject(sketch19)
sketch19.AttachmentSupport = (doc.XY_Plane, [""])
sketch19.MapMode = "FlatFace"
sketch19.AttachmentOffset = App.Placement(Vector(0, 0, 5), App.Rotation())
sketch19.addGeometry([
    Part.Circle(Vector(-120.5, 214.5, 0), Vector(0, 0, 1), 2),
    Part.Circle(Vector(-120.5, 166.2, 0), Vector(0, 0, 1), 2),
    Part.Circle(Vector(-54.5, 166.2, 0), Vector(0, 0, 1), 2),
    Part.Circle(Vector(-54.5, 214.5, 0), Vector(0, 0, 1), 2),
    Part.Circle(Vector(-54.5, 143.3, 0), Vector(0, 0, 1), 2),
    Part.Circle(Vector(-54.5, 95, 0), Vector(0, 0, 1), 2),
    Part.Circle(Vector(-120.5, 143.3, 0), Vector(0, 0, 1), 2),
    Part.Circle(Vector(-120.5, 95, 0), Vector(0, 0, 1), 2),
], False)
sketch19.addConstraint([
    Sketcher.Constraint("Equal", 0, 1),
    Sketcher.Constraint("Equal", 1, 2),
    Sketcher.Constraint("Equal", 2, 3),
    Sketcher.Constraint("Equal", 3, 4),
    Sketcher.Constraint("Equal", 4, 5),
    Sketcher.Constraint("Equal", 5, 6),
    Sketcher.Constraint("Equal", 6, 7),
    Sketcher.Constraint("Horizontal", 1, 3, 2, 3),
    Sketcher.Constraint("Horizontal", 0, 3, 3, 3),
    Sketcher.Constraint("Horizontal", 4, 3, 6, 3),
    Sketcher.Constraint("Horizontal", 5, 3, 7, 3),
    Sketcher.Constraint("Vertical", 0, 3, 1, 3),
    Sketcher.Constraint("Vertical", 2, 3, 3, 3),
    Sketcher.Constraint("Vertical", 3, 3, 4, 3),
    Sketcher.Constraint("Vertical", 4, 3, 5, 3),
    Sketcher.Constraint("Vertical", 1, 3, 6, 3),
    Sketcher.Constraint("Vertical", 6, 3, 7, 3),
    Sketcher.Constraint("Diameter", 0, 4.0),
    Sketcher.Constraint("DistanceY", -1, 1, 5, 3, 95.0),
    Sketcher.Constraint("DistanceX", 1, 3, 2, 3, 66.0),
    Sketcher.Constraint("DistanceX", 0, 3, -1, 1, 120.5),
    Sketcher.Constraint("DistanceY", -1, 1, 4, 3, 143.3),
    Sketcher.Constraint("DistanceY", 1, 3, 0, 3, 48.3),
    Sketcher.Constraint("DistanceY", -1, 1, 0, 3, 214.497475),
])
pocket18 = doc.addObject("PartDesign::Pocket", "Pocket017")
body.addObject(pocket18)
pocket18.Profile = sketch19
pocket18.Type = "ThroughAll"

sketch20 = doc.addObject("Sketcher::SketchObject", "Sketch019")
body.addObject(sketch20)
sketch20.AttachmentSupport = (doc.XY_Plane, [""])
sketch20.MapMode = "FlatFace"
sketch20.AttachmentOffset = App.Placement(Vector(0, 0, 5), App.Rotation())
sketch20.addGeometry([
    Part.Circle(Vector(-20.3, 204.7, 0), Vector(0, 0, 1), 2),
    Part.Circle(Vector(-20.3, 184.7, 0), Vector(0, 0, 1), 2),
    Part.Circle(Vector(-20.3, 124.7, 0), Vector(0, 0, 1), 2),
    Part.Circle(Vector(-20.3, 104.7, 0), Vector(0, 0, 1), 2),
], False)
sketch20.addConstraint([
    Sketcher.Constraint("Equal", 0, 1),
    Sketcher.Constraint("Equal", 1, 2),
    Sketcher.Constraint("Equal", 2, 3),
    Sketcher.Constraint("Vertical", 0, 3, 1, 3),
    Sketcher.Constraint("Vertical", 1, 3, 2, 3),
    Sketcher.Constraint("Vertical", 2, 3, 3, 3),
    Sketcher.Constraint("Diameter", 0, 4.0),
    Sketcher.Constraint("DistanceY", 1, 3, 0, 3, 20.0),
    Sketcher.Constraint("DistanceY", 2, 3, 1, 3, 60.0),
    Sketcher.Constraint("DistanceY", 3, 3, 2, 3, 20.0),
    Sketcher.Constraint("DistanceX", 0, 3, -1, 1, 20.251263),
    Sketcher.Constraint("DistanceY", -1, 1, 0, 3, 204.748737),
])
pocket19 = doc.addObject("PartDesign::Pocket", "Pocket018")
body.addObject(pocket19)
pocket19.Profile = sketch20
pocket19.Length = 10

doc.recompute()
